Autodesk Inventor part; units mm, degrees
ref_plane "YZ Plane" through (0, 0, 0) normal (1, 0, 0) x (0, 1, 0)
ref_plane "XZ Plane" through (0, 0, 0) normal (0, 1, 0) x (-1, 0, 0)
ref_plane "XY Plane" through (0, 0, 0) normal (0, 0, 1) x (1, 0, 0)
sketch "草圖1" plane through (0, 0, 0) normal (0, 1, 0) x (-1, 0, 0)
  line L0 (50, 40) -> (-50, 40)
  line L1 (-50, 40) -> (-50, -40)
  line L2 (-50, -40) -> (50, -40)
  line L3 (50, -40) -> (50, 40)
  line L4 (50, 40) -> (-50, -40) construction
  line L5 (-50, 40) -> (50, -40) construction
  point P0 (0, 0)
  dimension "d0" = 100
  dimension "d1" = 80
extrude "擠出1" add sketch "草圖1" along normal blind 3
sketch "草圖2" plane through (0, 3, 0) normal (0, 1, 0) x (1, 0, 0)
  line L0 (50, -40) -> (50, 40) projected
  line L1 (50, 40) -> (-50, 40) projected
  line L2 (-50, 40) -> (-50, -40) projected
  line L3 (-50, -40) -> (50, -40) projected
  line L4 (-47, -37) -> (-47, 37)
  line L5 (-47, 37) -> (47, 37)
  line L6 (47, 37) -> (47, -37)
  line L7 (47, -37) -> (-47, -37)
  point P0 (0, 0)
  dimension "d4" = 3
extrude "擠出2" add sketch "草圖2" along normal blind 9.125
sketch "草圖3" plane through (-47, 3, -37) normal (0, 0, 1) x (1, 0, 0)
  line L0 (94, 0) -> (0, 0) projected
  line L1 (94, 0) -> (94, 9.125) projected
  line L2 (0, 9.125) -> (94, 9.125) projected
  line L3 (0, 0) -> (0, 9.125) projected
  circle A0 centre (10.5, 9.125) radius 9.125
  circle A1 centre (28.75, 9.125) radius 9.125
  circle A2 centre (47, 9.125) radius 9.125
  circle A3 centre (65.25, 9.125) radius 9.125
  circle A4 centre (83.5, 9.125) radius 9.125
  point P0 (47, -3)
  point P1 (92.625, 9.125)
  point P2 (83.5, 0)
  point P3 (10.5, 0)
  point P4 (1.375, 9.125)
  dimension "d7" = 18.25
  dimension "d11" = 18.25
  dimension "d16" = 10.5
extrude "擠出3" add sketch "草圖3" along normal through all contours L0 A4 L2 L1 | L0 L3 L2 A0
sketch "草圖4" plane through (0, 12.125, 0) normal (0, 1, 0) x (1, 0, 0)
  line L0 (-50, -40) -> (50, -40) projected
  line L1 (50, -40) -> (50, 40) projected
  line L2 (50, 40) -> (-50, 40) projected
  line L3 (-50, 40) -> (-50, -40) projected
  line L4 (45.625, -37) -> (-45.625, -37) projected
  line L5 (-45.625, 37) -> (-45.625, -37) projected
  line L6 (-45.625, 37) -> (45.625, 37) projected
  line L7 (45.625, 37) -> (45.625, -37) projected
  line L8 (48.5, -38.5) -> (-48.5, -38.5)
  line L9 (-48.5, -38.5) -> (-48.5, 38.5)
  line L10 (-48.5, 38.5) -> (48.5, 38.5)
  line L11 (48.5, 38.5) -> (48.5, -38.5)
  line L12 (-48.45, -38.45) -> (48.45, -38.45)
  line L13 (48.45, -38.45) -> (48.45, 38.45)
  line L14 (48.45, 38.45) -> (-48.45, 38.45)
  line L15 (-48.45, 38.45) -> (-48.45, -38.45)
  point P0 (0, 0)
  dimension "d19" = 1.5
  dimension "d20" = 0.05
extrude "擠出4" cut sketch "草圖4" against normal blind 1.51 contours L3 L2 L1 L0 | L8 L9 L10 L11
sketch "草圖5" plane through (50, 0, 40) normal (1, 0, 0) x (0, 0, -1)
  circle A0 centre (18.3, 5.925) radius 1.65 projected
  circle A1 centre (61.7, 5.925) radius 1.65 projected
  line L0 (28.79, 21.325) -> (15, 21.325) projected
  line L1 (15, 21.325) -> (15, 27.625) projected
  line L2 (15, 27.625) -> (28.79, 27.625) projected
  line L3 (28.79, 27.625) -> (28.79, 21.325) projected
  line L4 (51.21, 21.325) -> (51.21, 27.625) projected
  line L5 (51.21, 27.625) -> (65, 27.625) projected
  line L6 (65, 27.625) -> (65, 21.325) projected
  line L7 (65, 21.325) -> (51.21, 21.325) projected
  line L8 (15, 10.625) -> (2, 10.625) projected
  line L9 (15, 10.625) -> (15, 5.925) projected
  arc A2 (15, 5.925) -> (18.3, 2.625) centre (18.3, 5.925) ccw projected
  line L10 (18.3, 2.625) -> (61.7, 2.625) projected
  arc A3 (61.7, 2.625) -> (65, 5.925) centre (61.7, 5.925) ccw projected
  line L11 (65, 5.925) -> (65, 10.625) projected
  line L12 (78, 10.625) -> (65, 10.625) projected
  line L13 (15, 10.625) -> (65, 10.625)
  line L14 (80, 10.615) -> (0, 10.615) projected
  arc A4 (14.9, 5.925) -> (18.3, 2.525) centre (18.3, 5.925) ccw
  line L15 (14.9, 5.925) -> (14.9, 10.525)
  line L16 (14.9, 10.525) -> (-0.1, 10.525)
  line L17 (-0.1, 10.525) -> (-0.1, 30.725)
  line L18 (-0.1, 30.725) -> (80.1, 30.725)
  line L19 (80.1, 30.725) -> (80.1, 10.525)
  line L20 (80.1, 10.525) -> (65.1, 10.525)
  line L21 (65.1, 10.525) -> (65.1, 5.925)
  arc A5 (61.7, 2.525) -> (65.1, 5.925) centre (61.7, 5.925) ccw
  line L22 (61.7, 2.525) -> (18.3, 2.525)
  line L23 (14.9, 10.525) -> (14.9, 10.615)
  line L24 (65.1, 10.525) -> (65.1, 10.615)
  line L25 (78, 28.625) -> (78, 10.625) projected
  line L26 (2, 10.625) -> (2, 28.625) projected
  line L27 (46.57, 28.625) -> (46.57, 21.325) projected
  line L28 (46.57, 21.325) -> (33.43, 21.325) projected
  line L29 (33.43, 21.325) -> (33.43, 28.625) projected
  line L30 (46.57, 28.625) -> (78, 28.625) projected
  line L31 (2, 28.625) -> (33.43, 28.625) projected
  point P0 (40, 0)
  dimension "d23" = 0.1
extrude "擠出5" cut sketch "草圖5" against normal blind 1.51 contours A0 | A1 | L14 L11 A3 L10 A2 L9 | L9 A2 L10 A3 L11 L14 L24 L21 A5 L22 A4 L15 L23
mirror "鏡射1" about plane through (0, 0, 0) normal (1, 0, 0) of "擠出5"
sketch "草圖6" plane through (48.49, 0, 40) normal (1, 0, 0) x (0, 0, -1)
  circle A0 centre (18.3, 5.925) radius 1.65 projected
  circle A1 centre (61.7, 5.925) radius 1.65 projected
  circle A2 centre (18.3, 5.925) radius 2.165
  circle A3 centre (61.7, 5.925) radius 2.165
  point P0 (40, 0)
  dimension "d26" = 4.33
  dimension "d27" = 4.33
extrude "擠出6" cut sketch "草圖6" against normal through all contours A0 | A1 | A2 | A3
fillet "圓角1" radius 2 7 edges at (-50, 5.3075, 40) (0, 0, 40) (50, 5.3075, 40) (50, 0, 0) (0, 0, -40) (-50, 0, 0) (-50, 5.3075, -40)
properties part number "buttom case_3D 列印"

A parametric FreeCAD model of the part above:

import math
import FreeCAD as App
import Part
import Sketcher
from FreeCAD import Vector


def edges_at(feature, points):
    """Names of the edges that pass closest to the given points."""
    edges = feature.Shape.Edges
    near = lambda p: min(range(len(edges)), key=lambda i: edges[i].distToShape(Part.Vertex(*p))[0])
    return sorted({f"Edge{near(p) + 1}" for p in points})

doc = App.newDocument("Part")
body = doc.addObject("PartDesign::Body", "Body")

# Sketch on XZ plane
sketch1 = body.newObject("Sketcher::SketchObject", "Sketch")
sketch1.AttachmentSupport = (doc.getObject("XZ_Plane"), [""])
sketch1.MapMode = "FlatFace"
sketch1.addGeometry(Part.LineSegment(Vector(-50, -40, 0), Vector(-50, 40, 0)), False)
sketch1.addGeometry(Part.LineSegment(Vector(-50, 40, 0), Vector(50, 40, 0)), False)
sketch1.addGeometry(Part.LineSegment(Vector(50, 40, 0), Vector(50, -40, 0)), False)
sketch1.addGeometry(Part.LineSegment(Vector(50, -40, 0), Vector(-50, -40, 0)), False)
sketch1.addConstraint(Sketcher.Constraint("Coincident", 0, 2, 1, 1))
sketch1.addConstraint(Sketcher.Constraint("Coincident", 1, 2, 2, 1))
sketch1.addConstraint(Sketcher.Constraint("Coincident", 2, 2, 3, 1))
sketch1.addConstraint(Sketcher.Constraint("Coincident", 3, 2, 0, 1))
sketch1.addConstraint(Sketcher.Constraint("Vertical", 0))
sketch1.addConstraint(Sketcher.Constraint("Horizontal", 1))
sketch1.addConstraint(Sketcher.Constraint("Vertical", 2))
sketch1.addConstraint(Sketcher.Constraint("Horizontal", 3))
sketch1.addConstraint(Sketcher.Constraint("Symmetric", 0, 2, 2, 2, -1, 1))
sketch1.addConstraint(Sketcher.Constraint("DistanceX", 1, 1, 1, 2, 100.0))
sketch1.addConstraint(Sketcher.Constraint("DistanceY", 0, 1, 0, 2, 80.0))
pad1 = body.newObject("PartDesign::Pad", "Pad")
pad1.Profile = sketch1
pad1.Length = 3
pad1.Reversed = True

# Sketch on XZ plane
sketch2 = body.newObject("Sketcher::SketchObject", "Sketch001")
sketch2.AttachmentSupport = (doc.getObject("XZ_Plane"), [""])
sketch2.MapMode = "FlatFace"
sketch2.AttachmentOffset = App.Placement(Vector(0, 0, -3), App.Rotation())
sketch2.addGeometry(Part.LineSegment(Vector(-50, 40, 0), Vector(50, 40, 0)), False)
sketch2.addGeometry(Part.LineSegment(Vector(50, 40, 0), Vector(50, -40, 0)), False)
sketch2.addGeometry(Part.LineSegment(Vector(50, -40, 0), Vector(-50, -40, 0)), False)
sketch2.addGeometry(Part.LineSegment(Vector(-50, -40, 0), Vector(-50, 40, 0)), False)
sketch2.addGeometry(Part.LineSegment(Vector(47, 37, 0), Vector(-47, 37, 0)), False)
sketch2.addGeometry(Part.LineSegment(Vector(-47, 37, 0), Vector(-47, -37, 0)), False)
sketch2.addGeometry(Part.LineSegment(Vector(-47, -37, 0), Vector(47, -37, 0)), False)
sketch2.addGeometry(Part.LineSegment(Vector(47, -37, 0), Vector(47, 37, 0)), False)
sketch2.addConstraint(Sketcher.Constraint("Coincident", 0, 2, 1, 1))
sketch2.addConstraint(Sketcher.Constraint("Coincident", 1, 2, 2, 1))
sketch2.addConstraint(Sketcher.Constraint("Coincident", 2, 2, 3, 1))
sketch2.addConstraint(Sketcher.Constraint("Coincident", 3, 2, 0, 1))
sketch2.addConstraint(Sketcher.Constraint("Coincident", 4, 2, 5, 1))
sketch2.addConstraint(Sketcher.Constraint("Coincident", 5, 2, 6, 1))
sketch2.addConstraint(Sketcher.Constraint("Coincident", 6, 2, 7, 1))
sketch2.addConstraint(Sketcher.Constraint("Coincident", 7, 2, 4, 1))
sketch2.addConstraint(Sketcher.Constraint("Horizontal", 0))
sketch2.addConstraint(Sketcher.Constraint("Vertical", 1))
sketch2.addConstraint(Sketcher.Constraint("Horizontal", 2))
sketch2.addConstraint(Sketcher.Constraint("Vertical", 3))
sketch2.addConstraint(Sketcher.Constraint("Horizontal", 4))
sketch2.addConstraint(Sketcher.Constraint("Vertical", 5))
sketch2.addConstraint(Sketcher.Constraint("Horizontal", 6))
sketch2.addConstraint(Sketcher.Constraint("Vertical", 7))
sketch2.addConstraint(Sketcher.Constraint("Symmetric", 0, 2, 2, 2, -1, 1))
sketch2.addConstraint(Sketcher.Constraint("Symmetric", 4, 2, 6, 2, -1, 1))
sketch2.addConstraint(Sketcher.Constraint("DistanceX", 3, 2, 4, 2, 3.0))
sketch2.addConstraint(Sketcher.Constraint("DistanceY", 4, 2, 3, 2, 3.0))
sketch2.addConstraint(Sketcher.Constraint("DistanceX", 0, 1, 0, 2, 100.0))
sketch2.addConstraint(Sketcher.Constraint("DistanceY", 1, 2, 1, 1, 80.0))
pad2 = body.newObject("PartDesign::Pad", "Pad001")
pad2.Profile = sketch2
pad2.Length = 9.125
pad2.Reversed = True

# Sketch on XY plane
sketch3 = body.newObject("Sketcher::SketchObject", "Sketch002")
sketch3.AttachmentSupport = (doc.getObject("XY_Plane"), [""])
sketch3.MapMode = "FlatFace"
sketch3.AttachmentOffset = App.Placement(Vector(0, 0, -37), App.Rotation())
sketch3.addGeometry(Part.LineSegment(Vector(36.5, 3, 0), Vector(47, 3, 0)), False)
sketch3.addGeometry(Part.LineSegment(Vector(47, 3, 0), Vector(47, 12.1, 0)), False)
sketch3.addGeometry(Part.LineSegment(Vector(47, 12.1, 0), Vector(45.6, 12.1, 0)), False)
sketch3.addGeometry(Part.ArcOfCircle(Part.Circle(Vector(36.5, 12.1, 0), Vector(0, 0, 1), 9.1), math.radians(-90), math.radians(0)), False)
sketch3.addGeometry(Part.LineSegment(Vector(-47, 3, 0), Vector(-36.5, 3, 0)), False)
sketch3.addGeometry(Part.ArcOfCircle(Part.Circle(Vector(-36.5, 12.1, 0), Vector(0, 0, 1), 9.1), math.radians(180), math.radians(270)), False)
sketch3.addGeometry(Part.LineSegment(Vector(-45.6, 12.1, 0), Vector(-47, 12.1, 0)), False)
sketch3.addGeometry(Part.LineSegment(Vector(-47, 12.1, 0), Vector(-47, 3, 0)), False)
sketch3.addConstraint(Sketcher.Constraint("Coincident", 0, 2, 1, 1))
sketch3.addConstraint(Sketcher.Constraint("Coincident", 1, 2, 2, 1))
sketch3.addConstraint(Sketcher.Constraint("Coincident", 2, 2, 3, 2))
sketch3.addConstraint(Sketcher.Constraint("Tangent", 3, 1, 0, 1))
sketch3.addConstraint(Sketcher.Constraint("Tangent", 4, 2, 5, 2))
sketch3.addConstraint(Sketcher.Constraint("Coincident", 5, 1, 6, 1))
sketch3.addConstraint(Sketcher.Constraint("Coincident", 6, 2, 7, 1))
sketch3.addConstraint(Sketcher.Constraint("Coincident", 7, 2, 4, 1))
sketch3.addConstraint(Sketcher.Constraint("Horizontal", 0))
sketch3.addConstraint(Sketcher.Constraint("Vertical", 1))
sketch3.addConstraint(Sketcher.Constraint("Horizontal", 2))
sketch3.addConstraint(Sketcher.Constraint("Horizontal", 4))
sketch3.addConstraint(Sketcher.Constraint("Horizontal", 6))
sketch3.addConstraint(Sketcher.Constraint("Vertical", 7))
sketch3.addConstraint(Sketcher.Constraint("Equal", 3, 5))
sketch3.addConstraint(Sketcher.Constraint("Symmetric", 3, 3, 5, 3, -2))
sketch3.addConstraint(Sketcher.Constraint("Symmetric", 1, 2, 6, 2, -2))
sketch3.addConstraint(Sketcher.Constraint("Horizontal", 5, 3, 1, 2))
sketch3.addConstraint(Sketcher.Constraint("DistanceX", 0, 1, 0, 2, 10.5))
sketch3.addConstraint(Sketcher.Constraint("Radius", 3, 9.125))
sketch3.addConstraint(Sketcher.Constraint("DistanceX", -1, 1, 0, 2, 47.0))
sketch3.addConstraint(Sketcher.Constraint("DistanceY", -1, 1, 0, 2, 3.0))
pad3 = body.newObject("PartDesign::Pad", "Pad002")
pad3.Profile = sketch3
pad3.Type = "UpToLast"

# Sketch on XZ plane
sketch4 = body.newObject("Sketcher::SketchObject", "Sketch003")
sketch4.AttachmentSupport = (doc.getObject("XZ_Plane"), [""])
sketch4.MapMode = "FlatFace"
sketch4.AttachmentOffset = App.Placement(Vector(0, 0, -12.125), App.Rotation())
sketch4.addGeometry(Part.LineSegment(Vector(-50, -40, 0), Vector(-50, 40, 0)), False)
sketch4.addGeometry(Part.LineSegment(Vector(-50, 40, 0), Vector(50, 40, 0)), False)
sketch4.addGeometry(Part.LineSegment(Vector(50, 40, 0), Vector(50, -40, 0)), False)
sketch4.addGeometry(Part.LineSegment(Vector(50, -40, 0), Vector(-50, -40, 0)), False)
sketch4.addGeometry(Part.LineSegment(Vector(48, 38, 0), Vector(-48, 38, 0)), False)
sketch4.addGeometry(Part.LineSegment(Vector(-48, 38, 0), Vector(-48, -38, 0)), False)
sketch4.addGeometry(Part.LineSegment(Vector(-48, -38, 0), Vector(48, -38, 0)), False)
sketch4.addGeometry(Part.LineSegment(Vector(48, -38, 0), Vector(48, 38, 0)), False)
sketch4.addConstraint(Sketcher.Constraint("Coincident", 0, 2, 1, 1))
sketch4.addConstraint(Sketcher.Constraint("Coincident", 1, 2, 2, 1))
sketch4.addConstraint(Sketcher.Constraint("Coincident", 2, 2, 3, 1))
sketch4.addConstraint(Sketcher.Constraint("Coincident", 3, 2, 0, 1))
sketch4.addConstraint(Sketcher.Constraint("Coincident", 4, 2, 5, 1))
sketch4.addConstraint(Sketcher.Constraint("Coincident", 5, 2, 6, 1))
sketch4.addConstraint(Sketcher.Constraint("Coincident", 6, 2, 7, 1))
sketch4.addConstraint(Sketcher.Constraint("Coincident", 7, 2, 4, 1))
sketch4.addConstraint(Sketcher.Constraint("Vertical", 0))
sketch4.addConstraint(Sketcher.Constraint("Horizontal", 1))
sketch4.addConstraint(Sketcher.Constraint("Vertical", 2))
sketch4.addConstraint(Sketcher.Constraint("Horizontal", 3))
sketch4.addConstraint(Sketcher.Constraint("Horizontal", 4))
sketch4.addConstraint(Sketcher.Constraint("Vertical", 5))
sketch4.addConstraint(Sketcher.Constraint("Horizontal", 6))
sketch4.addConstraint(Sketcher.Constraint("Vertical", 7))
sketch4.addConstraint(Sketcher.Constraint("Symmetric", 0, 2, 2, 2, -1, 1))
sketch4.addConstraint(Sketcher.Constraint("Symmetric", 4, 2, 6, 2, -1, 1))
sketch4.addConstraint(Sketcher.Constraint("DistanceX", 1, 1, 1, 2, 100.0))
sketch4.addConstraint(Sketcher.Constraint("DistanceY", 0, 1, 0, 2, 80.0))
sketch4.addConstraint(Sketcher.Constraint("DistanceX", 4, 2, 4, 1, 96.9))
sketch4.addConstraint(Sketcher.Constraint("DistanceY", 5, 2, 5, 1, 76.9))
pocket1 = body.newObject("PartDesign::Pocket", "Pocket")
pocket1.Profile = sketch4
pocket1.Length = 1.51
pocket1.Reversed = True

# Sketch on YZ plane
sketch5 = body.newObject("Sketcher::SketchObject", "Sketch004")
sketch5.AttachmentSupport = (doc.getObject("YZ_Plane"), [""])
sketch5.MapMode = "FlatFace"
sketch5.AttachmentOffset = App.Placement(Vector(0, 0, 50), App.Rotation())
sketch5.addGeometry(Part.LineSegment(Vector(10.6, 25.1, 0), Vector(5.9, 25.1, 0)), False)
sketch5.addGeometry(Part.ArcOfCircle(Part.Circle(Vector(5.9, 21.7, 0), Vector(0, 0, 1), 3.4), math.radians(90), math.radians(180)), False)
sketch5.addGeometry(Part.LineSegment(Vector(2.5, 21.7, 0), Vector(2.5, -21.7, 0)), False)
sketch5.addGeometry(Part.ArcOfCircle(Part.Circle(Vector(5.9, -21.7, 0), Vector(0, 0, 1), 3.4), math.radians(180), math.radians(270)), False)
sketch5.addGeometry(Part.LineSegment(Vector(5.9, -25.1, 0), Vector(10.6, -25.1, 0)), False)
sketch5.addGeometry(Part.LineSegment(Vector(10.6, -25.1, 0), Vector(10.6, 25.1, 0)), False)
sketch5.addConstraint(Sketcher.Constraint("Tangent", 0, 2, 1, 1))
sketch5.addConstraint(Sketcher.Constraint("Tangent", 1, 2, 2, 1))
sketch5.addConstraint(Sketcher.Constraint("Tangent", 2, 2, 3, 1))
sketch5.addConstraint(Sketcher.Constraint("Tangent", 3, 2, 4, 1))
sketch5.addConstraint(Sketcher.Constraint("Coincident", 4, 2, 5, 1))
sketch5.addConstraint(Sketcher.Constraint("Coincident", 5, 2, 0, 1))
sketch5.addConstraint(Sketcher.Constraint("Horizontal", 0))
sketch5.addConstraint(Sketcher.Constraint("Vertical", 2))
sketch5.addConstraint(Sketcher.Constraint("Horizontal", 4))
sketch5.addConstraint(Sketcher.Constraint("Vertical", 5))
sketch5.addConstraint(Sketcher.Constraint("Equal", 1, 3))
sketch5.addConstraint(Sketcher.Constraint("Radius", 1, 3.4))
sketch5.addConstraint(Sketcher.Constraint("DistanceY", 2, 2, 2, 1, 43.4))
sketch5.addConstraint(Sketcher.Constraint("DistanceX", 0, 2, 0, 1, 4.69))
sketch5.addConstraint(Sketcher.Constraint("DistanceY", -1, 1, 1, 3, 21.7))
sketch5.addConstraint(Sketcher.Constraint("DistanceX", -1, 1, 1, 3, 5.925))
pocket2 = body.newObject("PartDesign::Pocket", "Pocket001")
pocket2.Profile = sketch5
pocket2.Length = 1.51
doc.recompute()

mirrored = body.newObject("PartDesign::Mirrored", "Mirrored")
mirrored.Originals = [pocket2]
mirrored.MirrorPlane = (doc.getObject("YZ_Plane"), [""])
body.Tip = mirrored

# Sketch on YZ plane
sketch6 = body.newObject("Sketcher::SketchObject", "Sketch005")
sketch6.AttachmentSupport = (doc.getObject("YZ_Plane"), [""])
sketch6.MapMode = "FlatFace"
sketch6.AttachmentOffset = App.Placement(Vector(0, 0, 48.49), App.Rotation())
sketch6.addGeometry(Part.Circle(Vector(5.9, 21.7, 0), Vector(0, 0, 1), 2.2), False)
sketch6.addGeometry(Part.Circle(Vector(5.9, -21.7, 0), Vector(0, 0, 1), 2.2), False)
sketch6.addConstraint(Sketcher.Constraint("Equal", 0, 1))
sketch6.addConstraint(Sketcher.Constraint("Symmetric", 0, 3, 1, 3, -1))
sketch6.addConstraint(Sketcher.Constraint("Diameter", 0, 4.33))
sketch6.addConstraint(Sketcher.Constraint("DistanceY", -1, 1, 0, 3, 21.7))
sketch6.addConstraint(Sketcher.Constraint("DistanceX", -1, 1, 0, 3, 5.925))
pocket3 = body.newObject("PartDesign::Pocket", "Pocket002")
pocket3.Profile = sketch6
pocket3.Type = "ThroughAll"
doc.recompute()

fillet = body.newObject("PartDesign::Fillet", "Fillet")
fillet.Base = (pocket3, edges_at(pocket3, [
    (-50, 5.308, 40),
    (0, 0, 40),
    (50, 5.308, 40),
    (50, 0, 0),
    (0, 0, -40),
    (-50, 0, 0),
    (-50, 5.308, -40),
]))
fillet.Radius = 2

doc.recompute()
